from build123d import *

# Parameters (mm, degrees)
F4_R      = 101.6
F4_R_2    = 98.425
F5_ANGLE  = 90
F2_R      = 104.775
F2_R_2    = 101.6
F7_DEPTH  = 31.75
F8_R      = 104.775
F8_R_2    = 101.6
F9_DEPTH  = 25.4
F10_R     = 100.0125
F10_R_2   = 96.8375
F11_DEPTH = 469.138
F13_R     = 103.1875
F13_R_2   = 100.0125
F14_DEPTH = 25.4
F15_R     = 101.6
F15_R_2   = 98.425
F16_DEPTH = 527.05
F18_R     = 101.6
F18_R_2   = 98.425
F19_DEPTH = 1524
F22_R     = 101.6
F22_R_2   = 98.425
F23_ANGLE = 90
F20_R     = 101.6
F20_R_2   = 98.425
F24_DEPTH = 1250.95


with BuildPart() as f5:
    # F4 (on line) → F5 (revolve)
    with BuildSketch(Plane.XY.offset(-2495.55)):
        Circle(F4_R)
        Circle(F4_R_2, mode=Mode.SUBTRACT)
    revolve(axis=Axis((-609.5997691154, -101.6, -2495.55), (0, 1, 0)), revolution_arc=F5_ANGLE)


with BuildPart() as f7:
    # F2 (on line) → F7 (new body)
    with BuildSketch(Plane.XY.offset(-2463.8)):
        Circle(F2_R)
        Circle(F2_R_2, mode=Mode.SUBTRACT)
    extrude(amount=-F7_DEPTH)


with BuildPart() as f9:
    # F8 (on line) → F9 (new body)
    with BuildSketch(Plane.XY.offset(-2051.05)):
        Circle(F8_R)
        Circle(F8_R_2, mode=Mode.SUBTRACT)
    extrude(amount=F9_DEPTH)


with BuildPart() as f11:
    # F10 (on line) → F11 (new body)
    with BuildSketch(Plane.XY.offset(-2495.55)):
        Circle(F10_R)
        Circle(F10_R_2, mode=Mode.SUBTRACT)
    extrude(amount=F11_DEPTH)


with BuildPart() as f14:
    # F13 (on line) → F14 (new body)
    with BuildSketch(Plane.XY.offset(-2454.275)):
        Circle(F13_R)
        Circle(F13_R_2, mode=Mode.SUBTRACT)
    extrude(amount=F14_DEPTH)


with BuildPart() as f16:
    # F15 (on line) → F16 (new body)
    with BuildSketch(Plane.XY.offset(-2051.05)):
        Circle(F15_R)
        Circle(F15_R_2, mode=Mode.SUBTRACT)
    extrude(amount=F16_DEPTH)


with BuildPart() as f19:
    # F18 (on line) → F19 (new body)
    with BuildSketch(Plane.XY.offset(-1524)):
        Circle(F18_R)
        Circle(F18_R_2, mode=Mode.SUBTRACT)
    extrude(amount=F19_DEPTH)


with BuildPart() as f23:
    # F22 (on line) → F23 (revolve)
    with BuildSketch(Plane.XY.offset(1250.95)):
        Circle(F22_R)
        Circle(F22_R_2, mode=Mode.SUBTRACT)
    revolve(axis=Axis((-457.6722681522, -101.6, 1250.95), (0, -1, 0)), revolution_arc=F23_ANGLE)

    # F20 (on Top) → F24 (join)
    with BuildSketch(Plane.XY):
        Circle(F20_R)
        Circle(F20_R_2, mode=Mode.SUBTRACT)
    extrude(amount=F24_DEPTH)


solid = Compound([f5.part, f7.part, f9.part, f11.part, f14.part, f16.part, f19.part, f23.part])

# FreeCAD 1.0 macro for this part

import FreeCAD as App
import Part
import Sketcher
from FreeCAD import Vector
Q = App.Units.Quantity

doc = App.newDocument("Part")
body = doc.addObject("PartDesign::Body", "Body")

sketch1 = body.newObject("Sketcher::SketchObject", "Sketch")
sketch1.AttachmentSupport = (doc.getObject("XY_Plane"), [""])
sketch1.MapMode = "FlatFace"
sketch1.AttachmentOffset = App.Placement(Vector(0, 0, -98.25 * 25.4), App.Rotation())
sketch1.addGeometry(Part.Circle(Vector(0, 0, 0), Vector(0, 0, 1), 102), False)
sketch1.addGeometry(Part.Circle(Vector(0, 0, 0), Vector(0, 0, 1), 98), False)
sketch1.addGeometry(Part.LineSegment(Vector(-610, 0, 0), Vector(-610, 10, 0)), True)
sketch1.addConstraint(Sketcher.Constraint("Vertical", 2))
sketch1.addConstraint(Sketcher.Constraint("Coincident", 0, 3, -1, 1))
sketch1.addConstraint(Sketcher.Constraint("Coincident", 1, 3, -1, 1))
sketch1.addConstraint(Sketcher.Constraint("PointOnObject", 2, 1, -1))
sketch1.addConstraint(Sketcher.Constraint("Diameter", 0, Q("8 in")))
sketch1.addConstraint(Sketcher.Constraint("Diameter", 1, Q("7.75 in")))
sketch1.addConstraint(Sketcher.Constraint("DistanceY", 2, 1, 2, 2, Q("10 mm")))
sketch1.addConstraint(Sketcher.Constraint("DistanceX", 2, 1, -1, 1, Q("609.599769 mm")))
revolution = body.newObject("PartDesign::Revolution", "Revolution")
revolution.Profile = sketch1
revolution.ReferenceAxis = (sketch1, ["Axis0"])
revolution.Angle = 90
body2 = doc.addObject("PartDesign::Body", "Body001")

sketch2 = body2.newObject("Sketcher::SketchObject", "Sketch001")
sketch2.AttachmentSupport = (doc.getObject("XY_Plane001"), [""])
sketch2.MapMode = "FlatFace"
sketch2.AttachmentOffset = App.Placement(Vector(0, 0, -97 * 25.4), App.Rotation())
sketch2.addGeometry(Part.Circle(Vector(0, 0, 0), Vector(0, 0, 1), 105), False)
sketch2.addGeometry(Part.Circle(Vector(0, 0, 0), Vector(0, 0, 1), 102), False)
sketch2.addConstraint(Sketcher.Constraint("Coincident", 0, 3, -1, 1))
sketch2.addConstraint(Sketcher.Constraint("Coincident", 1, 3, -1, 1))
sketch2.addConstraint(Sketcher.Constraint("Diameter", 1, Q("8 in")))
sketch2.addConstraint(Sketcher.Constraint("Diameter", 0, Q("8.25 in")))
pad1 = body2.newObject("PartDesign::Pad", "Pad")
pad1.Profile = sketch2
pad1.Length = Q("1.25 in")
pad1.Reversed = True
body3 = doc.addObject("PartDesign::Body", "Body002")

sketch3 = body3.newObject("Sketcher::SketchObject", "Sketch002")
sketch3.AttachmentSupport = (doc.getObject("XY_Plane002"), [""])
sketch3.MapMode = "FlatFace"
sketch3.AttachmentOffset = App.Placement(Vector(0, 0, -80.75 * 25.4), App.Rotation())
sketch3.addGeometry(Part.Circle(Vector(0, 0, 0), Vector(0, 0, 1), 105), False)
sketch3.addGeometry(Part.Circle(Vector(0, 0, 0), Vector(0, 0, 1), 102), False)
sketch3.addConstraint(Sketcher.Constraint("Coincident", 0, 3, -1, 1))
sketch3.addConstraint(Sketcher.Constraint("Coincident", 1, 3, -1, 1))
sketch3.addConstraint(Sketcher.Constraint("Diameter", 1, Q("8 in")))
sketch3.addConstraint(Sketcher.Constraint("Diameter", 0, Q("8.25 in")))
pad2 = body3.newObject("PartDesign::Pad", "Pad001")
pad2.Profile = sketch3
pad2.Length = Q("1 in")
body4 = doc.addObject("PartDesign::Body", "Body003")

sketch4 = body4.newObject("Sketcher::SketchObject", "Sketch003")
sketch4.AttachmentSupport = (doc.getObject("XY_Plane003"), [""])
sketch4.MapMode = "FlatFace"
sketch4.AttachmentOffset = App.Placement(Vector(0, 0, -98.25 * 25.4), App.Rotation())
sketch4.addGeometry(Part.Circle(Vector(0, 0, 0), Vector(0, 0, 1), 100), False)
sketch4.addGeometry(Part.Circle(Vector(0, 0, 0), Vector(0, 0, 1), 97), False)
sketch4.addConstraint(Sketcher.Constraint("Coincident", 0, 3, -1, 1))
sketch4.addConstraint(Sketcher.Constraint("Coincident", 1, 3, -1, 1))
sketch4.addConstraint(Sketcher.Constraint("Diameter", 0, Q("7.875 in")))
sketch4.addConstraint(Sketcher.Constraint("Diameter", 1, Q("7.625 in")))
pad3 = body4.newObject("PartDesign::Pad", "Pad002")
pad3.Profile = sketch4
pad3.Length = Q("18.47 in")
body5 = doc.addObject("PartDesign::Body", "Body004")

sketch5 = body5.newObject("Sketcher::SketchObject", "Sketch004")
sketch5.AttachmentSupport = (doc.getObject("XY_Plane004"), [""])
sketch5.MapMode = "FlatFace"
sketch5.AttachmentOffset = App.Placement(Vector(0, 0, -96.625 * 25.4), App.Rotation())
sketch5.addGeometry(Part.Circle(Vector(0, 0, 0), Vector(0, 0, 1), 103), False)
sketch5.addGeometry(Part.Circle(Vector(0, 0, 0), Vector(0, 0, 1), 100), False)
sketch5.addConstraint(Sketcher.Constraint("Coincident", 0, 3, -1, 1))
sketch5.addConstraint(Sketcher.Constraint("Coincident", 1, 3, -1, 1))
sketch5.addConstraint(Sketcher.Constraint("Diameter", 0, Q("8.125 in")))
sketch5.addConstraint(Sketcher.Constraint("Diameter", 1, Q("7.875 in")))
pad4 = body5.newObject("PartDesign::Pad", "Pad003")
pad4.Profile = sketch5
pad4.Length = Q("1 in")
body6 = doc.addObject("PartDesign::Body", "Body005")

sketch6 = body6.newObject("Sketcher::SketchObject", "Sketch005")
sketch6.AttachmentSupport = (doc.getObject("XY_Plane005"), [""])
sketch6.MapMode = "FlatFace"
sketch6.AttachmentOffset = App.Placement(Vector(0, 0, -80.75 * 25.4), App.Rotation())
sketch6.addGeometry(Part.Circle(Vector(0, 0, 0), Vector(0, 0, 1), 102), False)
sketch6.addGeometry(Part.Circle(Vector(0, 0, 0), Vector(0, 0, 1), 98), False)
sketch6.addConstraint(Sketcher.Constraint("Coincident", 0, 3, -1, 1))
sketch6.addConstraint(Sketcher.Constraint("Coincident", 1, 3, -1, 1))
sketch6.addConstraint(Sketcher.Constraint("Diameter", 0, Q("8 in")))
sketch6.addConstraint(Sketcher.Constraint("Diameter", 1, Q("7.75 in")))
pad5 = body6.newObject("PartDesign::Pad", "Pad004")
pad5.Profile = sketch6
pad5.Length = Q("20.75 in")
body7 = doc.addObject("PartDesign::Body", "Body006")

sketch7 = body7.newObject("Sketcher::SketchObject", "Sketch006")
sketch7.AttachmentSupport = (doc.getObject("XY_Plane006"), [""])
sketch7.MapMode = "FlatFace"
sketch7.AttachmentOffset = App.Placement(Vector(0, 0, -60 * 25.4), App.Rotation())
sketch7.addGeometry(Part.Circle(Vector(0, 0, 0), Vector(0, 0, 1), 102), False)
sketch7.addGeometry(Part.Circle(Vector(0, 0, 0), Vector(0, 0, 1), 98), False)
sketch7.addConstraint(Sketcher.Constraint("Coincident", 0, 3, -1, 1))
sketch7.addConstraint(Sketcher.Constraint("Coincident", 1, 3, -1, 1))
sketch7.addConstraint(Sketcher.Constraint("Diameter", 0, Q("8 in")))
sketch7.addConstraint(Sketcher.Constraint("Diameter", 1, Q("7.75 in")))
pad6 = body7.newObject("PartDesign::Pad", "Pad005")
pad6.Profile = sketch7
pad6.Length = Q("60 in")
body8 = doc.addObject("PartDesign::Body", "Body007")

sketch8 = body8.newObject("Sketcher::SketchObject", "Sketch007")
sketch8.AttachmentSupport = (doc.getObject("XY_Plane007"), [""])
sketch8.MapMode = "FlatFace"
sketch8.AttachmentOffset = App.Placement(Vector(0, 0, 49.25 * 25.4), App.Rotation())
sketch8.addGeometry(Part.Circle(Vector(0, 0, 0), Vector(0, 0, 1), 102), False)
sketch8.addGeometry(Part.Circle(Vector(0, 0, 0), Vector(0, 0, 1), 98), False)
sketch8.addGeometry(Part.LineSegment(Vector(-458, 0, 0), Vector(-458, -10, 0)), True)
sketch8.addConstraint(Sketcher.Constraint("Vertical", 2))
sketch8.addConstraint(Sketcher.Constraint("Coincident", 0, 3, -1, 1))
sketch8.addConstraint(Sketcher.Constraint("Coincident", 1, 3, -1, 1))
sketch8.addConstraint(Sketcher.Constraint("PointOnObject", 2, 1, -1))
sketch8.addConstraint(Sketcher.Constraint("Diameter", 0, Q("8 in")))
sketch8.addConstraint(Sketcher.Constraint("Diameter", 1, Q("7.75 in")))
sketch8.addConstraint(Sketcher.Constraint("DistanceY", 2, 2, 2, 1, Q("10 mm")))
sketch8.addConstraint(Sketcher.Constraint("DistanceX", 2, 1, -1, 1, Q("457.672268 mm")))
revolution2 = body8.newObject("PartDesign::Revolution", "Revolution001")
revolution2.Profile = sketch8
revolution2.ReferenceAxis = (sketch8, ["Axis0"])
revolution2.Angle = 90

sketch9 = body8.newObject("Sketcher::SketchObject", "Sketch008")
sketch9.AttachmentSupport = (doc.getObject("XY_Plane007"), [""])
sketch9.MapMode = "FlatFace"
sketch9.addGeometry(Part.Circle(Vector(0, 0, 0), Vector(0, 0, 1), 102), False)
sketch9.addGeometry(Part.Circle(Vector(0, 0, 0), Vector(0, 0, 1), 98), False)
sketch9.addConstraint(Sketcher.Constraint("Coincident", 0, 3, -1, 1))
sketch9.addConstraint(Sketcher.Constraint("Coincident", 1, 3, -1, 1))
sketch9.addConstraint(Sketcher.Constraint("Diameter", 0, Q("8 in")))
sketch9.addConstraint(Sketcher.Constraint("Diameter", 1, Q("7.75 in")))
pad7 = body8.newObject("PartDesign::Pad", "Pad006")
pad7.Profile = sketch9
pad7.Length = Q("49.25 in")

doc.recompute()
